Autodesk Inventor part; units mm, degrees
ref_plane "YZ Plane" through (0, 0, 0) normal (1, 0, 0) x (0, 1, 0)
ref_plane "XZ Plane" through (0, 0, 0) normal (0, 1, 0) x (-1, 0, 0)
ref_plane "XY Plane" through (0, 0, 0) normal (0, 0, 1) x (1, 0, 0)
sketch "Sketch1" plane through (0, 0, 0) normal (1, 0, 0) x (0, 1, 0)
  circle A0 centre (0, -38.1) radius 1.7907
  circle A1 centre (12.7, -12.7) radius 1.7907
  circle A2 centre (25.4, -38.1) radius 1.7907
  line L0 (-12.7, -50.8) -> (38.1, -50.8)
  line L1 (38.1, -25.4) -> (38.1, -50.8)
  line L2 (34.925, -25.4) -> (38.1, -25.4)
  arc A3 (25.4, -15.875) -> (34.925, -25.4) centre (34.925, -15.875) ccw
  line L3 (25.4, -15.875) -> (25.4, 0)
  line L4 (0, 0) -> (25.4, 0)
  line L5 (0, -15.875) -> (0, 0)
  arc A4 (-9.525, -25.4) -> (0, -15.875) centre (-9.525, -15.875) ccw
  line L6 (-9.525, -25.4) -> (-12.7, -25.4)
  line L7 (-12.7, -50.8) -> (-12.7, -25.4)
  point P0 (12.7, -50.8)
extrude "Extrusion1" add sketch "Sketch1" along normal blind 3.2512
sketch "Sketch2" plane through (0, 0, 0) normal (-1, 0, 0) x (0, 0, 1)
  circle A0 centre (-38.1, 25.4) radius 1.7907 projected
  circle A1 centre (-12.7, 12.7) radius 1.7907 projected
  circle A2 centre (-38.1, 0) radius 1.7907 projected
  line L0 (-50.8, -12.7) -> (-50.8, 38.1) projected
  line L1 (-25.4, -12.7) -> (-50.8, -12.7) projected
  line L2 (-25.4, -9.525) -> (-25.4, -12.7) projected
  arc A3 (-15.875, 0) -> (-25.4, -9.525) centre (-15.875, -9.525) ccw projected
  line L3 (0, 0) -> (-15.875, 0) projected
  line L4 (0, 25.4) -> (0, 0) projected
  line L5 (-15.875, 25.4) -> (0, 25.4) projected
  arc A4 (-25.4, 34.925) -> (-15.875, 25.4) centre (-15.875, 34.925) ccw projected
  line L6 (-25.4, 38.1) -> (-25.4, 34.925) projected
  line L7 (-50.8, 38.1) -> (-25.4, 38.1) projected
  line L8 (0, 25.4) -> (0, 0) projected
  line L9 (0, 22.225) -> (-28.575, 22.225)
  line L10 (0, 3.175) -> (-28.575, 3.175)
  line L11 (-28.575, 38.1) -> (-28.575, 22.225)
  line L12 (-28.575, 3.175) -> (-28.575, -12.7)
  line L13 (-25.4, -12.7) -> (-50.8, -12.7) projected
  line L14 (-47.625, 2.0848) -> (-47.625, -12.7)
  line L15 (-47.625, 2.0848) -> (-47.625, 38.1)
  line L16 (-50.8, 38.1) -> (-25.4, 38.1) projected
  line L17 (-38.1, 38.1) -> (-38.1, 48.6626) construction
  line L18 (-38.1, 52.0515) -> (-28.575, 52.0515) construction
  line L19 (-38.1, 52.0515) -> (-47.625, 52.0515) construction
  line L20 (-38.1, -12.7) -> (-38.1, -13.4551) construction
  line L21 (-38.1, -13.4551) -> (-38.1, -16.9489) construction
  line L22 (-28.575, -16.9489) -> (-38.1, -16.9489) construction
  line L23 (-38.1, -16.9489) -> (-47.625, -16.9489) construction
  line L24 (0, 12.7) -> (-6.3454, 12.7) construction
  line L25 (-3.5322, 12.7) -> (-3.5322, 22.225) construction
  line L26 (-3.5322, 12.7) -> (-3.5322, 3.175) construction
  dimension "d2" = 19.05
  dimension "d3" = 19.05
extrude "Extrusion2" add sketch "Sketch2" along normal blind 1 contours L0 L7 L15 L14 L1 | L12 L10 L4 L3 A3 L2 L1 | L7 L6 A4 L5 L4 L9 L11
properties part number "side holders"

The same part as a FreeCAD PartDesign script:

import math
import FreeCAD as App
import Part
import Sketcher
Q = App.Units.Quantity


def add_polygon(sketch, points):
    """Adds a closed chain of lines whose ends are joined by coincident constraints."""
    first, n = sketch.GeometryCount, len(points)
    for a, b in zip(points, points[1:] + points[:1]):
        sketch.addGeometry(Part.LineSegment(App.Vector(*a, 0), App.Vector(*b, 0)), False)
    for i in range(n):
        sketch.addConstraint(Sketcher.Constraint("Coincident", first + i, 2, first + (i + 1) % n, 1))

doc = App.newDocument("Part")
params = doc.addObject("Spreadsheet::Sheet", "Params")
for row, (alias, value) in enumerate([
    ("sketch1_width", "2 in"),
    ("sketch1_width2", "1 in"),
    ("sketch1_diameter", "0.141 in"),
    ("sketch1_radius", "0.375 in"),
    ("pad1_length", "0.128 in"),
    ("sketch2_radius", "0.375 in"),
    ("sketch2_width", "2 in"),
    ("pad2_length", "1 mm"),
], start=1):
    params.set(f"A{row}", alias)
    params.set(f"B{row}", "=" + value)
    params.setAlias(f"B{row}", alias)

body = doc.addObject("PartDesign::Body", "Body")

# Sketch on YZ plane
sketch1 = doc.addObject("Sketcher::SketchObject", "Sketch")
body.addObject(sketch1)
sketch1.AttachmentSupport = (doc.YZ_Plane, [""])
sketch1.MapMode = "FlatFace"
sketch1.addGeometry(Part.LineSegment(App.Vector(-12.7, -25.4, 0), App.Vector(-12.7, -50.8, 0)), False)
sketch1.addGeometry(Part.LineSegment(App.Vector(-12.7, -50.8, 0), App.Vector(38.1, -50.8, 0)), False)
sketch1.addGeometry(Part.LineSegment(App.Vector(38.1, -50.8, 0), App.Vector(38.1, -25.4, 0)), False)
sketch1.addGeometry(Part.LineSegment(App.Vector(38.1, -25.4, 0), App.Vector(34.9, -25.4, 0)), False)
sketch1.addGeometry(Part.ArcOfCircle(Part.Circle(App.Vector(34.9, -15.9, 0), App.Vector(0, 0, 1), 9.5), math.radians(180), math.radians(270)), False)
sketch1.addGeometry(Part.LineSegment(App.Vector(25.4, -15.9, 0), App.Vector(25.4, 0, 0)), False)
sketch1.addGeometry(Part.LineSegment(App.Vector(25.4, 0, 0), App.Vector(0, 0, 0)), False)
sketch1.addGeometry(Part.LineSegment(App.Vector(0, 0, 0), App.Vector(0, -15.9, 0)), False)
sketch1.addGeometry(Part.ArcOfCircle(Part.Circle(App.Vector(-9.5, -15.9, 0), App.Vector(0, 0, 1), 9.5), math.radians(-90), math.radians(0)), False)
sketch1.addGeometry(Part.LineSegment(App.Vector(-9.5, -25.4, 0), App.Vector(-12.7, -25.4, 0)), False)
sketch1.addGeometry(Part.Circle(App.Vector(0, -38.1, 0), App.Vector(0, 0, 1), 1.8), False)
sketch1.addGeometry(Part.Circle(App.Vector(25.4, -38.1, 0), App.Vector(0, 0, 1), 1.8), False)
sketch1.addGeometry(Part.Circle(App.Vector(12.7, -12.7, 0), App.Vector(0, 0, 1), 1.8), False)
sketch1.addConstraint(Sketcher.Constraint("Coincident", 0, 2, 1, 1))
sketch1.addConstraint(Sketcher.Constraint("Coincident", 1, 2, 2, 1))
sketch1.addConstraint(Sketcher.Constraint("Coincident", 2, 2, 3, 1))
sketch1.addConstraint(Sketcher.Constraint("Tangent", 3, 2, 4, 2))
sketch1.addConstraint(Sketcher.Constraint("Tangent", 4, 1, 5, 1))
sketch1.addConstraint(Sketcher.Constraint("Coincident", 5, 2, 6, 1))
sketch1.addConstraint(Sketcher.Constraint("Coincident", 6, 2, 7, 1))
sketch1.addConstraint(Sketcher.Constraint("Tangent", 7, 2, 8, 2))
sketch1.addConstraint(Sketcher.Constraint("Tangent", 8, 1, 9, 1))
sketch1.addConstraint(Sketcher.Constraint("Coincident", 9, 2, 0, 1))
sketch1.addConstraint(Sketcher.Constraint("Vertical", 0))
sketch1.addConstraint(Sketcher.Constraint("Horizontal", 1))
sketch1.addConstraint(Sketcher.Constraint("Vertical", 2))
sketch1.addConstraint(Sketcher.Constraint("Horizontal", 3))
sketch1.addConstraint(Sketcher.Constraint("Vertical", 5))
sketch1.addConstraint(Sketcher.Constraint("Horizontal", 6))
sketch1.addConstraint(Sketcher.Constraint("Vertical", 7))
sketch1.addConstraint(Sketcher.Constraint("Horizontal", 9))
sketch1.addConstraint(Sketcher.Constraint("Coincident", 6, 2, -1, 1))
sketch1.addConstraint(Sketcher.Constraint("Equal", 4, 8))
sketch1.addConstraint(Sketcher.Constraint("Equal", 10, 11))
sketch1.addConstraint(Sketcher.Constraint("Equal", 11, 12))
sketch1.addConstraint(Sketcher.Constraint("PointOnObject", 10, 3, -2))
sketch1.addConstraint(Sketcher.Constraint("Horizontal", 4, 3, 8, 3))
sketch1.addConstraint(Sketcher.Constraint("Horizontal", 10, 3, 11, 3))
sketch1.addConstraint(Sketcher.Constraint("Vertical", 11, 3, 4, 1))
sketch1.addConstraint(Sketcher.Constraint("Equal", 3, 9))
sketch1.addConstraint(Sketcher.Constraint("Equal", 6, 0))
sketch1.addConstraint(Sketcher.Constraint("DistanceX", 1, 1, 1, 2, Q("2 in")))
sketch1.addConstraint(Sketcher.Constraint("DistanceX", 6, 2, 6, 1, Q("1 in")))
sketch1.addConstraint(Sketcher.Constraint("Diameter", 10, Q("0.141 in")))
sketch1.addConstraint(Sketcher.Constraint("DistanceY", 0, 2, -1, 1, Q("2 in")))
sketch1.addConstraint(Sketcher.Constraint("Radius", 4, Q("0.375 in")))
sketch1.addConstraint(Sketcher.Constraint("DistanceY", 10, 3, 12, 3, Q("1 in")))
sketch1.addConstraint(Sketcher.Constraint("DistanceX", 0, 2, 12, 3, Q("1 in")))
sketch1.addConstraint(Sketcher.Constraint("DistanceY", 10, 3, -1, 1, Q("1.5 in")))
sketch1.setExpression("Constraints[28]", "Params.sketch1_width")
sketch1.setExpression("Constraints[29]", "Params.sketch1_width2")
sketch1.setExpression("Constraints[30]", "Params.sketch1_diameter")
sketch1.setExpression("Constraints[32]", "Params.sketch1_radius")
pad1 = doc.addObject("PartDesign::Pad", "Pad")
body.addObject(pad1)
pad1.Profile = sketch1
pad1.setExpression("Length", "Params.pad1_length")

# Sketch on YZ plane
sketch2 = doc.addObject("Sketcher::SketchObject", "Sketch001")
body.addObject(sketch2)
sketch2.AttachmentSupport = (doc.YZ_Plane, [""])
sketch2.MapMode = "FlatFace"
add_polygon(sketch2, [(38.1, -50.8), (-12.7, -50.8), (-12.7, -47.6), (38.1, -47.6)])  # lines 0-3
sketch2.addGeometry(Part.LineSegment(App.Vector(3.2, -28.6, 0), App.Vector(-12.7, -28.6, 0)), False)  # 4
sketch2.addGeometry(Part.LineSegment(App.Vector(-12.7, -28.6, 0), App.Vector(-12.7, -25.4, 0)), False)  # 5
sketch2.addGeometry(Part.LineSegment(App.Vector(-12.7, -25.4, 0), App.Vector(-9.5, -25.4, 0)), False)  # 6
sketch2.addGeometry(Part.ArcOfCircle(Part.Circle(App.Vector(-9.5, -15.9, 0), App.Vector(0, 0, 1), 9.5), math.radians(-90), math.radians(0)), False)  # 7
sketch2.addGeometry(Part.LineSegment(App.Vector(0, -15.9, 0), App.Vector(0, 0, 0)), False)  # 8
sketch2.addGeometry(Part.LineSegment(App.Vector(0, 0, 0), App.Vector(3.2, 0, 0)), False)  # 9
sketch2.addGeometry(Part.LineSegment(App.Vector(3.2, 0, 0), App.Vector(3.2, -28.6, 0)), False)  # 10
sketch2.addGeometry(Part.LineSegment(App.Vector(38.1, -25.4, 0), App.Vector(38.1, -28.6, 0)), False)  # 11
sketch2.addGeometry(Part.LineSegment(App.Vector(38.1, -28.6, 0), App.Vector(22.2, -28.6, 0)), False)  # 12
sketch2.addGeometry(Part.LineSegment(App.Vector(22.2, -28.6, 0), App.Vector(22.2, 0, 0)), False)  # 13
sketch2.addGeometry(Part.LineSegment(App.Vector(22.2, 0, 0), App.Vector(25.4, 0, 0)), False)  # 14
sketch2.addGeometry(Part.LineSegment(App.Vector(25.4, 0, 0), App.Vector(25.4, -15.9, 0)), False)  # 15
sketch2.addGeometry(Part.ArcOfCircle(Part.Circle(App.Vector(34.9, -15.9, 0), App.Vector(0, 0, 1), 9.5), math.radians(180), math.radians(270)), False)  # 16
sketch2.addGeometry(Part.LineSegment(App.Vector(34.9, -25.4, 0), App.Vector(38.1, -25.4, 0)), False)  # 17
sketch2.addConstraint(Sketcher.Constraint("Coincident", 4, 2, 5, 1))
sketch2.addConstraint(Sketcher.Constraint("Coincident", 5, 2, 6, 1))
sketch2.addConstraint(Sketcher.Constraint("Tangent", 6, 2, 7, 1))
sketch2.addConstraint(Sketcher.Constraint("Tangent", 7, 2, 8, 1))
sketch2.addConstraint(Sketcher.Constraint("Coincident", 8, 2, 9, 1))
sketch2.addConstraint(Sketcher.Constraint("Coincident", 9, 2, 10, 1))
sketch2.addConstraint(Sketcher.Constraint("Coincident", 10, 2, 4, 1))
sketch2.addConstraint(Sketcher.Constraint("Coincident", 11, 2, 12, 1))
sketch2.addConstraint(Sketcher.Constraint("Coincident", 12, 2, 13, 1))
sketch2.addConstraint(Sketcher.Constraint("Coincident", 13, 2, 14, 1))
sketch2.addConstraint(Sketcher.Constraint("Coincident", 14, 2, 15, 1))
sketch2.addConstraint(Sketcher.Constraint("Tangent", 15, 2, 16, 1))
sketch2.addConstraint(Sketcher.Constraint("Tangent", 16, 2, 17, 1))
sketch2.addConstraint(Sketcher.Constraint("Coincident", 17, 2, 11, 1))
sketch2.addConstraint(Sketcher.Constraint("Horizontal", 0))
sketch2.addConstraint(Sketcher.Constraint("Vertical", 1))
sketch2.addConstraint(Sketcher.Constraint("Horizontal", 2))
sketch2.addConstraint(Sketcher.Constraint("Vertical", 3))
sketch2.addConstraint(Sketcher.Constraint("Horizontal", 4))
sketch2.addConstraint(Sketcher.Constraint("Vertical", 5))
sketch2.addConstraint(Sketcher.Constraint("Horizontal", 6))
sketch2.addConstraint(Sketcher.Constraint("Vertical", 8))
sketch2.addConstraint(Sketcher.Constraint("Horizontal", 9))
sketch2.addConstraint(Sketcher.Constraint("Vertical", 10))
sketch2.addConstraint(Sketcher.Constraint("Vertical", 11))
sketch2.addConstraint(Sketcher.Constraint("Horizontal", 12))
sketch2.addConstraint(Sketcher.Constraint("Vertical", 13))
sketch2.addConstraint(Sketcher.Constraint("Horizontal", 14))
sketch2.addConstraint(Sketcher.Constraint("Vertical", 15))
sketch2.addConstraint(Sketcher.Constraint("Horizontal", 17))
sketch2.addConstraint(Sketcher.Constraint("Coincident", 8, 2, -1, 1))
sketch2.addConstraint(Sketcher.Constraint("Equal", 7, 16))
sketch2.addConstraint(Sketcher.Constraint("PointOnObject", 13, 2, -1))
sketch2.addConstraint(Sketcher.Constraint("Horizontal", 7, 3, 16, 3))
sketch2.addConstraint(Sketcher.Constraint("Horizontal", 10, 2, 11, 2))
sketch2.addConstraint(Sketcher.Constraint("Vertical", 1, 2, 4, 2))
sketch2.addConstraint(Sketcher.Constraint("Vertical", 3, 2, 11, 2))
sketch2.addConstraint(Sketcher.Constraint("Equal", 6, 9))
sketch2.addConstraint(Sketcher.Constraint("Equal", 4, 12))
sketch2.addConstraint(Sketcher.Constraint("Equal", 9, 14))
sketch2.addConstraint(Sketcher.Constraint("Equal", 17, 1))
sketch2.addConstraint(Sketcher.Constraint("Equal", 3, 5))
sketch2.addConstraint(Sketcher.Constraint("Equal", 12, 8))
sketch2.addConstraint(Sketcher.Constraint("Radius", 7, Q("0.375 in")))
sketch2.addConstraint(Sketcher.Constraint("DistanceX", 0, 2, 0, 1, Q("2 in")))
sketch2.addConstraint(Sketcher.Constraint("DistanceY", 1, 2, 4, 2, Q("0.75 in")))
sketch2.addConstraint(Sketcher.Constraint("DistanceX", 10, 2, 12, 2, Q("0.75 in")))
sketch2.setExpression("Constraints[47]", "Params.sketch2_radius")
sketch2.setExpression("Constraints[48]", "Params.sketch2_width")
pad2 = doc.addObject("PartDesign::Pad", "Pad001")
body.addObject(pad2)
pad2.Profile = sketch2
pad2.setExpression("Length", "Params.pad2_length")
pad2.Reversed = True

doc.recompute()
